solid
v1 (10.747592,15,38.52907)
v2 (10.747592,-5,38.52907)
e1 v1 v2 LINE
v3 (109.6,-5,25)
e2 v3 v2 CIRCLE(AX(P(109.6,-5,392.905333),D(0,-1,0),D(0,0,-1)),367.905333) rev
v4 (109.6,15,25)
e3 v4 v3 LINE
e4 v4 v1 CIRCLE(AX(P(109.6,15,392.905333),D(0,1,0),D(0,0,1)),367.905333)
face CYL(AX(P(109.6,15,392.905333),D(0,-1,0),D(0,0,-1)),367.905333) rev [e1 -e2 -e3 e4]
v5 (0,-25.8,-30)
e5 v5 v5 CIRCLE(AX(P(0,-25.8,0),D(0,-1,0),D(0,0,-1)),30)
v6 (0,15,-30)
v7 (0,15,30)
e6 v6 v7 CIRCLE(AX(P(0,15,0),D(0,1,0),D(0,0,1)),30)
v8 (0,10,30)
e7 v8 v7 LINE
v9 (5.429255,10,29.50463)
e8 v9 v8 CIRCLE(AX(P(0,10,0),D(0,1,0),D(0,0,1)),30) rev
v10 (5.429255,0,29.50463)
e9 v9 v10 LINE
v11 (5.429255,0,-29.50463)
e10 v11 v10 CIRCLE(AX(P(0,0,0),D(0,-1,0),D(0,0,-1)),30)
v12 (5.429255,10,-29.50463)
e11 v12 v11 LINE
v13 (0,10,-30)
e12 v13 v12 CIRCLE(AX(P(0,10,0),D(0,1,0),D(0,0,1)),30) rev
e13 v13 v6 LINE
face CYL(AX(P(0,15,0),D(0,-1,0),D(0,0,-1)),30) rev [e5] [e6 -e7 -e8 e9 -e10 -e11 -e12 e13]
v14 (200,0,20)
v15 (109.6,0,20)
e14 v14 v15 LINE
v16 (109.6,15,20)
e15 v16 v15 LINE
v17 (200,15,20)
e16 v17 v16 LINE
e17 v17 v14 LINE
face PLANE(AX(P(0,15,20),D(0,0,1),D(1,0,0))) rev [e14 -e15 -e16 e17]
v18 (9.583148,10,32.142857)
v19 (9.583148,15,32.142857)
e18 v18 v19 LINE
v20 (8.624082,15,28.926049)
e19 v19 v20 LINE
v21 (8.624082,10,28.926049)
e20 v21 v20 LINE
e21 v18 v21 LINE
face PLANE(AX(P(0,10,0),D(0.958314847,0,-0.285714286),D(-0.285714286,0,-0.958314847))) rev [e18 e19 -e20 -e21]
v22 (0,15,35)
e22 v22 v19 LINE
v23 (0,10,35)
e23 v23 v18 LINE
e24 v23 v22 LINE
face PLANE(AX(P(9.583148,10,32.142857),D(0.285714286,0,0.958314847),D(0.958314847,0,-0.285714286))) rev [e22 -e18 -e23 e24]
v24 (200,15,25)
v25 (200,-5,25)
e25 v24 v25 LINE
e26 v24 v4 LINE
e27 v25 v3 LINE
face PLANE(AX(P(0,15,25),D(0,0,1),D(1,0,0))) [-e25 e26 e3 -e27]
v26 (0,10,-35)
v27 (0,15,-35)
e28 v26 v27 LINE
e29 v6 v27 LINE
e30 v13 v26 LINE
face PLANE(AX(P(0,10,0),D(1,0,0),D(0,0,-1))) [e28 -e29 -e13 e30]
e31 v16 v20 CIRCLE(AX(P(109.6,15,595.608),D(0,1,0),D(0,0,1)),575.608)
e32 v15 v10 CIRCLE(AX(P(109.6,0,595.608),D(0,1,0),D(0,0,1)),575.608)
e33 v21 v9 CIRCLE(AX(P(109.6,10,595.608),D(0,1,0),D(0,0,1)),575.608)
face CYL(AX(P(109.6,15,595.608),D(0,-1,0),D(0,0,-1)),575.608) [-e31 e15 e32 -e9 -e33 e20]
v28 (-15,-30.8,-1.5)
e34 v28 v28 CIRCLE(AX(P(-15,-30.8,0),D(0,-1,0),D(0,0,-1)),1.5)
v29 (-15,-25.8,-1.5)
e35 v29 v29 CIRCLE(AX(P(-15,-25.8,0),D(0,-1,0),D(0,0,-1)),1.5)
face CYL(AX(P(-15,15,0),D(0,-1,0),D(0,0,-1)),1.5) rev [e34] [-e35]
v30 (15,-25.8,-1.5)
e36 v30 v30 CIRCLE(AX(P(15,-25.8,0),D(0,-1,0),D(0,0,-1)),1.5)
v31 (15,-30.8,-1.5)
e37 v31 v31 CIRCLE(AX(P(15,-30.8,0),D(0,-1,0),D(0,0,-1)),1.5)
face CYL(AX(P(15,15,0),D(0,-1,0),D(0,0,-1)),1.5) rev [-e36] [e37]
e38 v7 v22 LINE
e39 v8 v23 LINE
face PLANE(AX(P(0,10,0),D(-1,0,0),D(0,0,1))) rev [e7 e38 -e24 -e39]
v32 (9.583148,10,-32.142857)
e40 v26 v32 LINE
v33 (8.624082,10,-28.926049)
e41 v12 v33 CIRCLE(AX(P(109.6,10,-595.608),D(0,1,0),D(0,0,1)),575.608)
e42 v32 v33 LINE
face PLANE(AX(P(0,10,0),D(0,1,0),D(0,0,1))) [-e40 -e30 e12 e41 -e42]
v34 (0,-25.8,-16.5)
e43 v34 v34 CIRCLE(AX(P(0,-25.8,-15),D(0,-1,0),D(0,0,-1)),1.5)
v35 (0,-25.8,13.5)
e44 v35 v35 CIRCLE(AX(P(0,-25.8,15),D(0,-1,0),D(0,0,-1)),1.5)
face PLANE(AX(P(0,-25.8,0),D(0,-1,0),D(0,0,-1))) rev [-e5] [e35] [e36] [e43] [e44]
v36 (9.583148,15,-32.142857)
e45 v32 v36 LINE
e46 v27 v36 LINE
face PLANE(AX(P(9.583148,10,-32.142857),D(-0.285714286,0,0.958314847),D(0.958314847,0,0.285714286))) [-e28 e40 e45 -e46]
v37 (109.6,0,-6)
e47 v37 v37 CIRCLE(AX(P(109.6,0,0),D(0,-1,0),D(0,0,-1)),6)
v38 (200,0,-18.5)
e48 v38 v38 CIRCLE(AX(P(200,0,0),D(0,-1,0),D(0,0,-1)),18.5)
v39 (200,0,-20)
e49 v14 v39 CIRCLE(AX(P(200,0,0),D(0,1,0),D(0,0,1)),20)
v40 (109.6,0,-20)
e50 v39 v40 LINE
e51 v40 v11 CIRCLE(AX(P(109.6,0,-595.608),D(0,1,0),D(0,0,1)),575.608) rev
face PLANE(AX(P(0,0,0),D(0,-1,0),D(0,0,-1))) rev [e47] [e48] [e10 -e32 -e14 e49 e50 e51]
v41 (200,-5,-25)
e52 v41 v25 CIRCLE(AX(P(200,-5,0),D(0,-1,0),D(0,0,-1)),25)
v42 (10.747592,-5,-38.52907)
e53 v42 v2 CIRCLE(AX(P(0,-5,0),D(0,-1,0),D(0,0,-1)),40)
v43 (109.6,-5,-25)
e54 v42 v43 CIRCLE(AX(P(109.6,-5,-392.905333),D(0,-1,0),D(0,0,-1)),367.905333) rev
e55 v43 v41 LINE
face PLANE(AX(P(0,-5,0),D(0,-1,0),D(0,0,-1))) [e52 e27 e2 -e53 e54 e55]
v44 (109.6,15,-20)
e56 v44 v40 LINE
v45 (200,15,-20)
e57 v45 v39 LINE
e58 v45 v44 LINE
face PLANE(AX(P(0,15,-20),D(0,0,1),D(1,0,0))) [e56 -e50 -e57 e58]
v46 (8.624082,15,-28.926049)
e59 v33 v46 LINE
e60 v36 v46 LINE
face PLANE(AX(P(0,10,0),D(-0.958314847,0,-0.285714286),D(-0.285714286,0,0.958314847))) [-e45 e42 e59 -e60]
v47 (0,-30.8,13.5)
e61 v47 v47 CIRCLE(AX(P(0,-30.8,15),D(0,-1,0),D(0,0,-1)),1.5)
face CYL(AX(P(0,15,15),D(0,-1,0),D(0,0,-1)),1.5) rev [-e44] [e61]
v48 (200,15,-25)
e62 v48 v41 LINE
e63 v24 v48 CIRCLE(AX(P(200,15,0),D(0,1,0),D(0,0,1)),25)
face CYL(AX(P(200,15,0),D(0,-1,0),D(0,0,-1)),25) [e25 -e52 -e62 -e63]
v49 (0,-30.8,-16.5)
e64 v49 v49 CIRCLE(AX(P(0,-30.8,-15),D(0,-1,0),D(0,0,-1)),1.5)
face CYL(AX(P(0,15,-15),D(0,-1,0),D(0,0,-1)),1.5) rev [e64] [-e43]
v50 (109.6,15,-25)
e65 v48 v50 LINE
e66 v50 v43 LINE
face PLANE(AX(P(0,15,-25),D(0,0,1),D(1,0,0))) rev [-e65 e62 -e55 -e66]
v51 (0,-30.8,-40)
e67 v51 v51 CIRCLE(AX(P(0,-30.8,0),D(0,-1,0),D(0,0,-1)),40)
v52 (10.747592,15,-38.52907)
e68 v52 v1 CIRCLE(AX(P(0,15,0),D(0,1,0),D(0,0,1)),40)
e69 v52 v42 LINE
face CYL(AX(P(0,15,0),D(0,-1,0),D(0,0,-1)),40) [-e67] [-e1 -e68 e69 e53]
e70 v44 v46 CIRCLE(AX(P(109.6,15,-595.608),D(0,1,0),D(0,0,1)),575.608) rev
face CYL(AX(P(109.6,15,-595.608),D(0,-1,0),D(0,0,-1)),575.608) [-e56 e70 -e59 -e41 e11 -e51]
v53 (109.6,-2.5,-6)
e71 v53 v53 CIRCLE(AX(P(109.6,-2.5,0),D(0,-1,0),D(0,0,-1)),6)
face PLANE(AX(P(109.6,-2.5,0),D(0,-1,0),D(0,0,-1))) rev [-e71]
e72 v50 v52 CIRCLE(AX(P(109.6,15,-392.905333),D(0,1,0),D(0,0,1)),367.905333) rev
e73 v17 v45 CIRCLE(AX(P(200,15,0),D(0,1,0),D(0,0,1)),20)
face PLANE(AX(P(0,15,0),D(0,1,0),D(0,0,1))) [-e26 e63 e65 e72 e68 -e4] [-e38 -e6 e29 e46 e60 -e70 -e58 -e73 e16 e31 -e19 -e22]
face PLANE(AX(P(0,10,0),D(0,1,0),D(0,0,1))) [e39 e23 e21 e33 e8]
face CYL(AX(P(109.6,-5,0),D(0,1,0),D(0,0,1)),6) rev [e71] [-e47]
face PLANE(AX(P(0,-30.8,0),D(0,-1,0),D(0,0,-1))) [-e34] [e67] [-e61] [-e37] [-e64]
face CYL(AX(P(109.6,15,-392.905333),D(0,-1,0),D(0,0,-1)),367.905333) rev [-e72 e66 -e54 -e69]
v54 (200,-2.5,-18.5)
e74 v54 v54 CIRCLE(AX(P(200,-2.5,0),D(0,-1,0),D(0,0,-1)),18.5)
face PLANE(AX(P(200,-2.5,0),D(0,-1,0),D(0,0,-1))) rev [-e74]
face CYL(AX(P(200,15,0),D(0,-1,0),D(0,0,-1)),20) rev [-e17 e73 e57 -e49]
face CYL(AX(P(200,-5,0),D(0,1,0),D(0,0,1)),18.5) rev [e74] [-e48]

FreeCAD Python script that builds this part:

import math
import FreeCAD as App
import Part
import Sketcher

doc = App.newDocument("Part")
params = doc.addObject("Spreadsheet::Sheet", "Params")
for row, (alias, value) in enumerate([
    ("sketch1_radius", "25 mm"),
    ("sketch1_radius2", "40 mm"),
    ("sketch1_radius3", "20 mm"),
    ("sketch1_radius4", "30 mm"),
    ("sketch1_width", "90.4 mm"),
    ("pad1_length", "15 mm"),
    ("sketch2_diameter", "80 mm"),
    ("sketch2_diameter2", "60 mm"),
    ("pad2_length", "25.8 mm"),
    ("sketch3_diameter", "80 mm"),
    ("pad3_length", "5 mm"),
    ("sketch4_diameter", "12 mm"),
    ("sketch4_diameter2", "37 mm"),
    ("sketch4_radius", "25 mm"),
    ("sketch4_radius2", "40 mm"),
    ("sketch4_width", "90.4 mm"),
    ("pad4_length", "5 mm"),
    ("sketch5_diameter", "12 mm"),
    ("sketch5_diameter2", "37 mm"),
    ("pad5_length", "2.5 mm"),
    ("sketch6_radius", "30 mm"),
    ("sketch6_radius2", "30 mm"),
    ("sketch6_height", "5 mm"),
    ("sketch6_height2", "5 mm"),
    ("sketch6_length", "10 mm"),
    ("pocket1_length", "5 mm"),
    ("sketch7_diameter", "3 mm"),
], start=1):
    params.set(f"A{row}", alias)
    params.set(f"B{row}", "=" + value)
    params.setAlias(f"B{row}", alias)

body = doc.addObject("PartDesign::Body", "Body")

sketch1 = body.newObject("Sketcher::SketchObject", "Sketch")
sketch1.AttachmentSupport = (doc.getObject("XZ_Plane"), [""])
sketch1.MapMode = "FlatFace"
sketch1.addGeometry([
    Part.ArcOfCircle(Part.Circle(App.Vector(200, 0, 0), App.Vector(0, 0, 1), 25), math.radians(-90), math.radians(90)),
    Part.LineSegment(App.Vector(200, -25, 0), App.Vector(109.6, -25, 0)),
    Part.ArcOfCircle(Part.Circle(App.Vector(109.6, -392.905333, 0), App.Vector(0, 0, 1), 367.905333), math.radians(90), math.radians(105.586317)),
    Part.ArcOfCircle(Part.Circle(App.Vector(0, 0, 0), App.Vector(0, 0, 1), 40), math.radians(74.413683), math.radians(285.586317)),
    Part.ArcOfCircle(Part.Circle(App.Vector(109.6, 392.905333, 0), App.Vector(0, 0, 1), 367.905333), math.radians(-105.586317), math.radians(-90)),
    Part.LineSegment(App.Vector(109.6, 25, 0), App.Vector(200, 25, 0)),
    Part.ArcOfCircle(Part.Circle(App.Vector(109.6, -595.608, 0), App.Vector(0, 0, 1), 575.608), math.radians(90), math.radians(100.426565)),
    Part.LineSegment(App.Vector(109.6, -20, 0), App.Vector(200, -20, 0)),
    Part.ArcOfCircle(Part.Circle(App.Vector(200, 0, 0), App.Vector(0, 0, 1), 20), math.radians(-90), math.radians(90)),
    Part.LineSegment(App.Vector(200, 20, 0), App.Vector(109.6, 20, 0)),
    Part.ArcOfCircle(Part.Circle(App.Vector(109.6, 595.608, 0), App.Vector(0, 0, 1), 575.608), math.radians(-100.426565), math.radians(-90)),
    Part.ArcOfCircle(Part.Circle(App.Vector(0, 0, 0), App.Vector(0, 0, 1), 30), math.radians(79.573435), math.radians(280.426565)),
], False)
sketch1.addConstraint([
    Sketcher.Constraint("Tangent", 0, 1, 1, 1),
    Sketcher.Constraint("Tangent", 1, 2, 2, 1),
    Sketcher.Constraint("Tangent", 2, 2, 3, 2),
    Sketcher.Constraint("Tangent", 3, 1, 4, 1),
    Sketcher.Constraint("Tangent", 4, 2, 5, 1),
    Sketcher.Constraint("Tangent", 5, 2, 0, 2),
    Sketcher.Constraint("Tangent", 6, 1, 7, 1),
    Sketcher.Constraint("Tangent", 7, 2, 8, 1),
    Sketcher.Constraint("Tangent", 8, 2, 9, 1),
    Sketcher.Constraint("Tangent", 9, 2, 10, 2),
    Sketcher.Constraint("Tangent", 10, 1, 11, 1),
    Sketcher.Constraint("Tangent", 11, 2, 6, 2),
    Sketcher.Constraint("Horizontal", 1),
    Sketcher.Constraint("Horizontal", 5),
    Sketcher.Constraint("Horizontal", 7),
    Sketcher.Constraint("Horizontal", 9),
    Sketcher.Constraint("Coincident", 3, 3, -1, 1),
    Sketcher.Constraint("Coincident", 11, 3, -1, 1),
    Sketcher.Constraint("Coincident", 8, 3, 0, 3),
    Sketcher.Constraint("Equal", 2, 4),
    Sketcher.Constraint("Equal", 6, 10),
    Sketcher.Constraint("PointOnObject", 0, 3, -1),
    Sketcher.Constraint("Vertical", 4, 3, 6, 3),
    Sketcher.Constraint("Radius", 0, 25.0),
    Sketcher.Constraint("Radius", 3, 40.0),
    Sketcher.Constraint("Radius", 8, 20.0),
    Sketcher.Constraint("Radius", 11, 30.0),
    Sketcher.Constraint("DistanceX", 1, 2, 1, 1, 90.4),
    Sketcher.Constraint("DistanceX", -1, 1, 0, 3, 200.0),
])
sketch1.setExpression("Constraints[23]", "Params.sketch1_radius")
sketch1.setExpression("Constraints[24]", "Params.sketch1_radius2")
sketch1.setExpression("Constraints[25]", "Params.sketch1_radius3")
sketch1.setExpression("Constraints[26]", "Params.sketch1_radius4")
sketch1.setExpression("Constraints[27]", "Params.sketch1_width")
pad1 = body.newObject("PartDesign::Pad", "Pad")
pad1.Profile = sketch1
pad1.setExpression("Length", "Params.pad1_length")
pad1.Reversed = True

sketch2 = body.newObject("Sketcher::SketchObject", "Sketch001")
sketch2.AttachmentSupport = (doc.getObject("XZ_Plane"), [""])
sketch2.MapMode = "FlatFace"
sketch2.addGeometry([
    Part.Circle(App.Vector(0, 0, 0), App.Vector(0, 0, 1), 40),
    Part.Circle(App.Vector(0, 0, 0), App.Vector(0, 0, 1), 30),
], False)
sketch2.addConstraint([
    Sketcher.Constraint("Coincident", 0, 3, -1, 1),
    Sketcher.Constraint("Coincident", 1, 3, -1, 1),
    Sketcher.Constraint("Diameter", 0, 80.0),
    Sketcher.Constraint("Diameter", 1, 60.0),
])
sketch2.setExpression("Constraints[2]", "Params.sketch2_diameter")
sketch2.setExpression("Constraints[3]", "Params.sketch2_diameter2")
pad2 = body.newObject("PartDesign::Pad", "Pad001")
pad2.Profile = sketch2
pad2.setExpression("Length", "Params.pad2_length")

sketch3 = body.newObject("Sketcher::SketchObject", "Sketch002")
sketch3.AttachmentSupport = (doc.getObject("XZ_Plane"), [""])
sketch3.MapMode = "FlatFace"
sketch3.AttachmentOffset = App.Placement(App.Vector(0, 0, 25.8), App.Rotation())
sketch3.addGeometry(Part.Circle(App.Vector(0, 0, 0), App.Vector(0, 0, 1), 40), False)
sketch3.addConstraint([
    Sketcher.Constraint("Coincident", 0, 3, -1, 1),
    Sketcher.Constraint("Diameter", 0, 80.0),
])
sketch3.setExpression("Constraints[1]", "Params.sketch3_diameter")
pad3 = body.newObject("PartDesign::Pad", "Pad002")
pad3.Profile = sketch3
pad3.setExpression("Length", "Params.pad3_length")

sketch4 = body.newObject("Sketcher::SketchObject", "Sketch003")
sketch4.AttachmentSupport = (doc.getObject("XZ_Plane"), [""])
sketch4.MapMode = "FlatFace"
sketch4.addGeometry([
    Part.ArcOfCircle(Part.Circle(App.Vector(200, 0, 0), App.Vector(0, 0, 1), 25), math.radians(-90), math.radians(0)),
    Part.ArcOfCircle(Part.Circle(App.Vector(200, 0, 0), App.Vector(0, 0, 1), 25), math.radians(0), math.radians(90)),
    Part.LineSegment(App.Vector(200, 25, 0), App.Vector(109.6, 25, 0)),
    Part.ArcOfCircle(Part.Circle(App.Vector(109.6, 392.905333, 0), App.Vector(0, 0, 1), 367.905333), math.radians(-105.586317), math.radians(-90)),
    Part.ArcOfCircle(Part.Circle(App.Vector(0, 0, 0), App.Vector(0, 0, 1), 40), math.radians(39.43137), math.radians(74.413683)),
    Part.ArcOfCircle(Part.Circle(App.Vector(0, 0, 0), App.Vector(0, 0, 1), 40), math.radians(0), math.radians(39.43137)),
    Part.ArcOfCircle(Part.Circle(App.Vector(0, 0, 0), App.Vector(0, 0, 1), 40), math.radians(-39.43137), math.radians(0)),
    Part.ArcOfCircle(Part.Circle(App.Vector(0, 0, 0), App.Vector(0, 0, 1), 40), math.radians(-74.413683), math.radians(-39.43137)),
    Part.ArcOfCircle(Part.Circle(App.Vector(109.6, -392.905333, 0), App.Vector(0, 0, 1), 367.905333), math.radians(90), math.radians(105.586317)),
    Part.LineSegment(App.Vector(109.6, -25, 0), App.Vector(200, -25, 0)),
    Part.Circle(App.Vector(109.6, 0, 0), App.Vector(0, 0, 1), 6),
    Part.Circle(App.Vector(200, 0, 0), App.Vector(0, 0, 1), 18.5),
], False)
sketch4.addConstraint([
    Sketcher.Constraint("Tangent", 0, 2, 1, 1),
    Sketcher.Constraint("Tangent", 1, 2, 2, 1),
    Sketcher.Constraint("Tangent", 2, 2, 3, 2),
    Sketcher.Constraint("Tangent", 3, 1, 4, 2),
    Sketcher.Constraint("Tangent", 4, 1, 5, 2),
    Sketcher.Constraint("Tangent", 5, 1, 6, 2),
    Sketcher.Constraint("Tangent", 6, 1, 7, 2),
    Sketcher.Constraint("Tangent", 7, 1, 8, 2),
    Sketcher.Constraint("Tangent", 8, 1, 9, 1),
    Sketcher.Constraint("Tangent", 9, 2, 0, 1),
    Sketcher.Constraint("Horizontal", 2),
    Sketcher.Constraint("Horizontal", 9),
    Sketcher.Constraint("Coincident", 4, 3, -1, 1),
    Sketcher.Constraint("Coincident", 6, 3, -1, 1),
    Sketcher.Constraint("Coincident", 11, 3, 0, 3),
    Sketcher.Constraint("Equal", 0, 1),
    Sketcher.Constraint("Equal", 6, 7),
    Sketcher.Constraint("Equal", 3, 8),
    Sketcher.Constraint("PointOnObject", 0, 3, -1),
    Sketcher.Constraint("PointOnObject", 10, 3, -1),
    Sketcher.Constraint("PointOnObject", 0, 2, -1),
    Sketcher.Constraint("PointOnObject", 5, 1, -1),
    Sketcher.Constraint("Vertical", 8, 3, 10, 3),
    Sketcher.Constraint("Vertical", 4, 1, 6, 1),
    Sketcher.Constraint("Diameter", 10, 12.0),
    Sketcher.Constraint("Diameter", 11, 37.0),
    Sketcher.Constraint("Radius", 0, 25.0),
    Sketcher.Constraint("Radius", 4, 40.0),
    Sketcher.Constraint("DistanceX", 2, 2, 2, 1, 90.4),
    Sketcher.Constraint("DistanceX", -1, 1, 0, 3, 200.0),
    Sketcher.Constraint("DistanceY", -1, 1, 4, 1, 25.40614),
])
sketch4.setExpression("Constraints[24]", "Params.sketch4_diameter")
sketch4.setExpression("Constraints[25]", "Params.sketch4_diameter2")
sketch4.setExpression("Constraints[26]", "Params.sketch4_radius")
sketch4.setExpression("Constraints[27]", "Params.sketch4_radius2")
sketch4.setExpression("Constraints[28]", "Params.sketch4_width")
pad4 = body.newObject("PartDesign::Pad", "Pad003")
pad4.Profile = sketch4
pad4.setExpression("Length", "Params.pad4_length")

sketch5 = body.newObject("Sketcher::SketchObject", "Sketch004")
sketch5.AttachmentSupport = (doc.getObject("XZ_Plane"), [""])
sketch5.MapMode = "FlatFace"
sketch5.AttachmentOffset = App.Placement(App.Vector(0, 0, 5), App.Rotation())
sketch5.addGeometry([
    Part.Circle(App.Vector(109.6, 0, 0), App.Vector(0, 0, 1), 6),
    Part.Circle(App.Vector(200, 0, 0), App.Vector(0, 0, 1), 18.5),
], False)
sketch5.addConstraint([
    Sketcher.Constraint("PointOnObject", 0, 3, -1),
    Sketcher.Constraint("PointOnObject", 1, 3, -1),
    Sketcher.Constraint("Diameter", 0, 12.0),
    Sketcher.Constraint("Diameter", 1, 37.0),
    Sketcher.Constraint("DistanceX", -1, 1, 1, 3, 200.0),
    Sketcher.Constraint("DistanceX", -1, 1, 0, 3, 109.6),
])
sketch5.setExpression("Constraints[2]", "Params.sketch5_diameter")
sketch5.setExpression("Constraints[3]", "Params.sketch5_diameter2")
pad5 = body.newObject("PartDesign::Pad", "Pad004")
pad5.Profile = sketch5
pad5.setExpression("Length", "Params.pad5_length")
pad5.Reversed = True

sketch6 = body.newObject("Sketcher::SketchObject", "Sketch005")
sketch6.AttachmentSupport = (doc.getObject("XZ_Plane"), [""])
sketch6.MapMode = "FlatFace"
sketch6.AttachmentOffset = App.Placement(App.Vector(0, 0, -15), App.Rotation())
sketch6.addGeometry([
    Part.ArcOfCircle(Part.Circle(App.Vector(0, 0, 0), App.Vector(0, 0, 1), 30), math.radians(79.573435), math.radians(90)),
    Part.LineSegment(App.Vector(0, 30, 0), App.Vector(0, 35, 0)),
    Part.LineSegment(App.Vector(0, 35, 0), App.Vector(9.583148, 32.142857, 0)),
    Part.LineSegment(App.Vector(9.583148, 32.142857, 0), App.Vector(8.624082, 28.926049, 0)),
    Part.ArcOfCircle(Part.Circle(App.Vector(109.599988, 595.607933, 0), App.Vector(0, 0, 1), 575.607932), math.radians(-100.426565), math.radians(-100.10338)),
    Part.LineSegment(App.Vector(0, -35, 0), App.Vector(0, -30, 0)),
    Part.ArcOfCircle(Part.Circle(App.Vector(0, 0, 0), App.Vector(0, 0, 1), 30), math.radians(-90), math.radians(-79.573435)),
    Part.ArcOfCircle(Part.Circle(App.Vector(109.599988, -595.607933, 0), App.Vector(0, 0, 1), 575.607932), math.radians(100.10338), math.radians(100.426565)),
    Part.LineSegment(App.Vector(8.624082, -28.926049, 0), App.Vector(9.583148, -32.142857, 0)),
    Part.LineSegment(App.Vector(9.583148, -32.142857, 0), App.Vector(0, -35, 0)),
], False)
sketch6.addConstraint([
    Sketcher.Constraint("Coincident", 0, 2, 1, 1),
    Sketcher.Constraint("Coincident", 1, 2, 2, 1),
    Sketcher.Constraint("Coincident", 2, 2, 3, 1),
    Sketcher.Constraint("Coincident", 3, 2, 4, 2),
    Sketcher.Constraint("Coincident", 4, 1, 0, 1),
    Sketcher.Constraint("Coincident", 5, 2, 6, 1),
    Sketcher.Constraint("Coincident", 6, 2, 7, 2),
    Sketcher.Constraint("Coincident", 7, 1, 8, 1),
    Sketcher.Constraint("Coincident", 8, 2, 9, 1),
    Sketcher.Constraint("Coincident", 9, 2, 5, 1),
    Sketcher.Constraint("Vertical", 1),
    Sketcher.Constraint("Vertical", 5),
    Sketcher.Constraint("Coincident", 0, 3, -1, 1),
    Sketcher.Constraint("Coincident", 6, 3, -1, 1),
    Sketcher.Constraint("PointOnObject", 0, 2, -2),
    Sketcher.Constraint("PointOnObject", 5, 2, -2),
    Sketcher.Constraint("Radius", 0, 30.0),
    Sketcher.Constraint("Radius", 6, 30.0),
    Sketcher.Constraint("DistanceY", 1, 1, 1, 2, 5.0),
    Sketcher.Constraint("DistanceY", 5, 1, 5, 2, 5.0),
    Sketcher.Constraint("Distance", 2, 10.0),
    Sketcher.Constraint("Distance", 9, 10.0),
    Sketcher.Constraint("Radius", 4, 575.607932),
    Sketcher.Constraint("Radius", 7, 575.607932),
    Sketcher.Constraint("DistanceY", 7, 1, 3, 2, 57.852098),
    Sketcher.Constraint("DistanceX", -1, 1, 2, 2, 9.583148),
    Sketcher.Constraint("DistanceX", -1, 1, 3, 2, 8.624082),
    Sketcher.Constraint("DistanceY", -1, 1, 3, 2, 28.926049),
    Sketcher.Constraint("DistanceY", -1, 1, 4, 1, 29.50463),
    Sketcher.Constraint("DistanceY", 6, 2, -1, 1, 29.50463),
    Sketcher.Constraint("DistanceX", -1, 1, 8, 2, 9.583148),
    Sketcher.Constraint("Distance", 8, 3.356734),
])
sketch6.setExpression("Constraints[16]", "Params.sketch6_radius")
sketch6.setExpression("Constraints[17]", "Params.sketch6_radius2")
sketch6.setExpression("Constraints[18]", "Params.sketch6_height")
sketch6.setExpression("Constraints[19]", "Params.sketch6_height2")
sketch6.setExpression("Constraints[20]", "Params.sketch6_length")
pocket1 = body.newObject("PartDesign::Pocket", "Pocket")
pocket1.Profile = sketch6
pocket1.setExpression("Length", "Params.pocket1_length")
pocket1.Reversed = True

sketch7 = body.newObject("Sketcher::SketchObject", "Sketch006")
sketch7.AttachmentSupport = (doc.getObject("XZ_Plane"), [""])
sketch7.MapMode = "FlatFace"
sketch7.AttachmentOffset = App.Placement(App.Vector(0, 0, 30.8), App.Rotation())
sketch7.addGeometry([
    Part.Circle(App.Vector(0, 15, 0), App.Vector(0, 0, 1), 1.5),
    Part.Circle(App.Vector(15, 0, 0), App.Vector(0, 0, 1), 1.5),
    Part.Circle(App.Vector(0, -15, 0), App.Vector(0, 0, 1), 1.5),
    Part.Circle(App.Vector(-15, 0, 0), App.Vector(0, 0, 1), 1.5),
], False)
sketch7.addConstraint([
    Sketcher.Constraint("Equal", 0, 1),
    Sketcher.Constraint("Equal", 1, 2),
    Sketcher.Constraint("Equal", 2, 3),
    Sketcher.Constraint("Symmetric", 0, 3, 2, 3, -1, 1),
    Sketcher.Constraint("Symmetric", 1, 3, 3, 3, -1, 1),
    Sketcher.Constraint("PointOnObject", 0, 3, -2),
    Sketcher.Constraint("PointOnObject", 1, 3, -1),
    Sketcher.Constraint("Diameter", 0, 3.0),
    Sketcher.Constraint("DistanceY", -1, 1, 0, 3, 15.0),
    Sketcher.Constraint("DistanceX", -1, 1, 1, 3, 15.0),
])
sketch7.setExpression("Constraints[7]", "Params.sketch7_diameter")
pocket2 = body.newObject("PartDesign::Pocket", "Pocket001")
pocket2.Profile = sketch7
pocket2.Type = "ThroughAll"
pocket2.Midplane = True

doc.recompute()
